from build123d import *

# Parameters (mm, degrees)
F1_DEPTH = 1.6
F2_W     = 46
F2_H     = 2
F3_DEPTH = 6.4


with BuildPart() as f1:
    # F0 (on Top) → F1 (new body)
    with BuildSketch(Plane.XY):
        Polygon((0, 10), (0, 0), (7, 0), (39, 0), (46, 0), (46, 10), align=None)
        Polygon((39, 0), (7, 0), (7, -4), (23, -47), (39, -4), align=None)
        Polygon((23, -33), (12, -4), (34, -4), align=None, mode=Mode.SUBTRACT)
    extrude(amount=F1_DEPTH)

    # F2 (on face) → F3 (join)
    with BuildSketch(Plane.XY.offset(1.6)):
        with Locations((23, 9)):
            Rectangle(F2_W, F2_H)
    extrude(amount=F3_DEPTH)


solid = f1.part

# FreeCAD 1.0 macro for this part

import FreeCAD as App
import Part
import Sketcher
from FreeCAD import Vector


def add_polygon(sketch, points):
    """Adds a closed chain of lines whose ends are joined by coincident constraints."""
    first, n = sketch.GeometryCount, len(points)
    for a, b in zip(points, points[1:] + points[:1]):
        sketch.addGeometry(Part.LineSegment(App.Vector(*a, 0), App.Vector(*b, 0)), False)
    for i in range(n):
        sketch.addConstraint(Sketcher.Constraint("Coincident", first + i, 2, first + (i + 1) % n, 1))

doc = App.newDocument("Part")
body = doc.addObject("PartDesign::Body", "Body")

# Sketch on XY plane
sketch1 = doc.addObject("Sketcher::SketchObject", "Sketch")
body.addObject(sketch1)
sketch1.AttachmentSupport = (doc.XY_Plane, [""])
sketch1.MapMode = "FlatFace"
add_polygon(sketch1, [(0, 10), (0, 0), (7, 0), (7, -4), (23, -47), (39, -4), (39, 0), (46, 0), (46, 10)])  # lines 0-8
add_polygon(sketch1, [(34, -4), (23, -33), (12, -4)])  # lines 9-11
sketch1.addConstraint(Sketcher.Constraint("Vertical", 0))
sketch1.addConstraint(Sketcher.Constraint("Horizontal", 1))
sketch1.addConstraint(Sketcher.Constraint("Vertical", 2))
sketch1.addConstraint(Sketcher.Constraint("Vertical", 5))
sketch1.addConstraint(Sketcher.Constraint("Horizontal", 6))
sketch1.addConstraint(Sketcher.Constraint("Vertical", 7))
sketch1.addConstraint(Sketcher.Constraint("Horizontal", 8))
sketch1.addConstraint(Sketcher.Constraint("Horizontal", 11))
sketch1.addConstraint(Sketcher.Constraint("Coincident", 0, 2, -1, 1))
sketch1.addConstraint(Sketcher.Constraint("PointOnObject", 5, 2, -1))
sketch1.addConstraint(Sketcher.Constraint("Horizontal", 2, 2, 4, 2))
sketch1.addConstraint(Sketcher.Constraint("Horizontal", 4, 2, 10, 2))
sketch1.addConstraint(Sketcher.Constraint("Vertical", 3, 2, 9, 2))
sketch1.addConstraint(Sketcher.Constraint("Equal", 1, 6))
sketch1.addConstraint(Sketcher.Constraint("Equal", 3, 4))
sketch1.addConstraint(Sketcher.Constraint("Equal", 9, 10))
sketch1.addConstraint(Sketcher.Constraint("DistanceX", 1, 1, 1, 2, 7.0))
sketch1.addConstraint(Sketcher.Constraint("DistanceX", 8, 2, 8, 1, 46.0))
sketch1.addConstraint(Sketcher.Constraint("DistanceX", 11, 1, 11, 2, 22.0))
sketch1.addConstraint(Sketcher.Constraint("DistanceY", 0, 2, 0, 1, 10.0))
sketch1.addConstraint(Sketcher.Constraint("DistanceY", 2, 2, 2, 1, 4.0))
sketch1.addConstraint(Sketcher.Constraint("DistanceY", 3, 2, -1, 1, 47.0))
sketch1.addConstraint(Sketcher.Constraint("DistanceY", 9, 2, -1, 1, 33.0))
pad1 = doc.addObject("PartDesign::Pad", "Pad")
body.addObject(pad1)
pad1.Profile = sketch1
pad1.Length = 1.6

# Sketch on XY plane
sketch2 = doc.addObject("Sketcher::SketchObject", "Sketch001")
body.addObject(sketch2)
sketch2.AttachmentSupport = (doc.XY_Plane, [""])
sketch2.MapMode = "FlatFace"
sketch2.AttachmentOffset = App.Placement(Vector(0, 0, 1.6), App.Rotation())
add_polygon(sketch2, [(0, 10), (0, 8), (46, 8), (46, 10)])  # lines 0-3
sketch2.addConstraint(Sketcher.Constraint("Vertical", 0))
sketch2.addConstraint(Sketcher.Constraint("Horizontal", 1))
sketch2.addConstraint(Sketcher.Constraint("Vertical", 2))
sketch2.addConstraint(Sketcher.Constraint("Horizontal", 3))
sketch2.addConstraint(Sketcher.Constraint("PointOnObject", 0, 2, -2))
sketch2.addConstraint(Sketcher.Constraint("DistanceX", 1, 1, 1, 2, 46.0))
sketch2.addConstraint(Sketcher.Constraint("DistanceY", 0, 2, 0, 1, 2.0))
sketch2.addConstraint(Sketcher.Constraint("DistanceY", -1, 1, 0, 2, 8.0))
pad2 = doc.addObject("PartDesign::Pad", "Pad001")
body.addObject(pad2)
pad2.Profile = sketch2
pad2.Length = 6.4

doc.recompute()
